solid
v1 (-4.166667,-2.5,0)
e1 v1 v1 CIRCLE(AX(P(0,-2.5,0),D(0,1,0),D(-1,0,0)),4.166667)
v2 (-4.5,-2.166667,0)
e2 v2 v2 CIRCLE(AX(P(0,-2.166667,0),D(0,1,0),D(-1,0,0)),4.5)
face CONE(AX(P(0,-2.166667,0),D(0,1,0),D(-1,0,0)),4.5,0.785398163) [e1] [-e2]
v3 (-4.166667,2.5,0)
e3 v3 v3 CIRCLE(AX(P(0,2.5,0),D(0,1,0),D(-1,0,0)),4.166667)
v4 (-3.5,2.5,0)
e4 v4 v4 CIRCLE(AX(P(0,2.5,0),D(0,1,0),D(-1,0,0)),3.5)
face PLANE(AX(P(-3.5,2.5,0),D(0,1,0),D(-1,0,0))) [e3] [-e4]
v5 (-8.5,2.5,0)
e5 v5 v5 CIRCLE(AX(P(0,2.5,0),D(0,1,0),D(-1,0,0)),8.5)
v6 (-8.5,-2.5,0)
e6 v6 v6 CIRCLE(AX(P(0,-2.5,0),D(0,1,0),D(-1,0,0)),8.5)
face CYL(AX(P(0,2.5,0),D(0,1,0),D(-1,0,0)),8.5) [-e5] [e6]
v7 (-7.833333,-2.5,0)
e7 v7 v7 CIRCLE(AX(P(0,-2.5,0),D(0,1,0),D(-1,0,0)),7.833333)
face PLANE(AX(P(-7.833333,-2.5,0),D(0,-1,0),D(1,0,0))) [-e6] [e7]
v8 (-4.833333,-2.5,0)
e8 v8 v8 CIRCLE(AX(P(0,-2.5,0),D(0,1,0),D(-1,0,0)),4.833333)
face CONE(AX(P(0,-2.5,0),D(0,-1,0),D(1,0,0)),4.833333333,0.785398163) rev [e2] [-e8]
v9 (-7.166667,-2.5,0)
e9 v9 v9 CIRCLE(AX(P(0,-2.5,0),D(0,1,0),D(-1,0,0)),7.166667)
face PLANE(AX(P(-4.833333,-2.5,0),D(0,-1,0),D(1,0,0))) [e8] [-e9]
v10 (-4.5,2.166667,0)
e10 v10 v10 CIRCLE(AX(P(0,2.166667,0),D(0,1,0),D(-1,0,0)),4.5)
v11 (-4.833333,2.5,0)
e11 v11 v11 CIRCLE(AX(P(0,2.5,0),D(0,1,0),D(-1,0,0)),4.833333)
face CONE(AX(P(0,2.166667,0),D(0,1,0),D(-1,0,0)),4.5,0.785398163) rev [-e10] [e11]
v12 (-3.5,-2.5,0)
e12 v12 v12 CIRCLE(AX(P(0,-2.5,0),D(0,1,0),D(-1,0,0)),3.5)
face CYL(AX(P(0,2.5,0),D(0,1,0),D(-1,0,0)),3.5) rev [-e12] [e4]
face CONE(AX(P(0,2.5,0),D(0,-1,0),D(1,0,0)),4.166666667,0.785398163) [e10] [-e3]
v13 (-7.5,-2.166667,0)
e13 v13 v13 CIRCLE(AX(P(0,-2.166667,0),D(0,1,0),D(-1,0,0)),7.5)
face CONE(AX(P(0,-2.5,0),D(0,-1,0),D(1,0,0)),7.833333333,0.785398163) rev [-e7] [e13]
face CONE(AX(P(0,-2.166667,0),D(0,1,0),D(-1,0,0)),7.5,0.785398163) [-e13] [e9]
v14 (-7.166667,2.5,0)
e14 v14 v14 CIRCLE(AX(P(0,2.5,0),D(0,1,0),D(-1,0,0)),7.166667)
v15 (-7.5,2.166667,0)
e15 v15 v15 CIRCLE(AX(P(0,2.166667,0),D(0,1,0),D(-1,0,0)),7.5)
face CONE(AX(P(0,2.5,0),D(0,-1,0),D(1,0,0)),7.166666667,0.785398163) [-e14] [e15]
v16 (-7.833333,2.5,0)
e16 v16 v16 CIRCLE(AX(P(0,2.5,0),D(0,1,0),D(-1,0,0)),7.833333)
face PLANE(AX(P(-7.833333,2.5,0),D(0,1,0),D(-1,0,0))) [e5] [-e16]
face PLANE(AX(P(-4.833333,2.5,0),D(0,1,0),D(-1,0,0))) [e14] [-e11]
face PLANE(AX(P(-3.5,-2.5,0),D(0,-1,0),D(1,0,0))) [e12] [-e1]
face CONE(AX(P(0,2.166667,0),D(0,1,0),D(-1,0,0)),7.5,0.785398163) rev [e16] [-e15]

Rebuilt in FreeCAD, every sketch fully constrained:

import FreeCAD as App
import Part
import Sketcher

V = App.Vector

doc = App.newDocument("Part")
params = doc.addObject("Spreadsheet::Sheet", "Params")
for row, (alias, value) in enumerate([
    ("sketch1_height", "5 mm"),
    ("revolution_angle", "360 deg"),
], start=1):
    params.set(f"A{row}", alias)
    params.set(f"B{row}", "=" + value)
    params.setAlias(f"B{row}", alias)

body = doc.addObject("PartDesign::Body", "Body")

# Sketch on XY plane
sketch1 = doc.addObject("Sketcher::SketchObject", "Sketch")
body.addObject(sketch1)
sketch1.AttachmentSupport = (doc.XY_Plane, [""])
sketch1.MapMode = "FlatFace"
sketch1.addGeometry([
    Part.LineSegment(V(-3.5, 2.5, 0), V(-4.166667, 2.5, 0)),  # 0
    Part.LineSegment(V(-4.166667, 2.5, 0), V(-4.5, 2.166667, 0)),  # 1
    Part.LineSegment(V(-4.5, 2.166667, 0), V(-4.833333, 2.5, 0)),  # 2
    Part.LineSegment(V(-4.833333, 2.5, 0), V(-7.166667, 2.5, 0)),  # 3
    Part.LineSegment(V(-7.166667, 2.5, 0), V(-7.5, 2.166667, 0)),  # 4
    Part.LineSegment(V(-7.5, 2.166667, 0), V(-7.833333, 2.5, 0)),  # 5
    Part.LineSegment(V(-7.833333, 2.5, 0), V(-8.5, 2.5, 0)),  # 6
    Part.LineSegment(V(-8.5, 2.5, 0), V(-8.5, -2.5, 0)),  # 7
    Part.LineSegment(V(-8.5, -2.5, 0), V(-7.833333, -2.5, 0)),  # 8
    Part.LineSegment(V(-7.833333, -2.5, 0), V(-7.5, -2.166667, 0)),  # 9
    Part.LineSegment(V(-7.5, -2.166667, 0), V(-7.166667, -2.5, 0)),  # 10
    Part.LineSegment(V(-7.166667, -2.5, 0), V(-4.833333, -2.5, 0)),  # 11
    Part.LineSegment(V(-4.833333, -2.5, 0), V(-4.5, -2.166667, 0)),  # 12
    Part.LineSegment(V(-4.5, -2.166667, 0), V(-4.166667, -2.5, 0)),  # 13
    Part.LineSegment(V(-4.166667, -2.5, 0), V(-3.5, -2.5, 0)),  # 14
    Part.LineSegment(V(-3.5, -2.5, 0), V(-3.5, 2.5, 0)),  # 15
], False)
sketch1.addConstraint([
    Sketcher.Constraint("Coincident", 0, 2, 1, 1),
    Sketcher.Constraint("Coincident", 1, 2, 2, 1),
    Sketcher.Constraint("Coincident", 2, 2, 3, 1),
    Sketcher.Constraint("Coincident", 3, 2, 4, 1),
    Sketcher.Constraint("Coincident", 4, 2, 5, 1),
    Sketcher.Constraint("Coincident", 5, 2, 6, 1),
    Sketcher.Constraint("Coincident", 6, 2, 7, 1),
    Sketcher.Constraint("Coincident", 7, 2, 8, 1),
    Sketcher.Constraint("Coincident", 8, 2, 9, 1),
    Sketcher.Constraint("Coincident", 9, 2, 10, 1),
    Sketcher.Constraint("Coincident", 10, 2, 11, 1),
    Sketcher.Constraint("Coincident", 11, 2, 12, 1),
    Sketcher.Constraint("Coincident", 12, 2, 13, 1),
    Sketcher.Constraint("Coincident", 13, 2, 14, 1),
    Sketcher.Constraint("Coincident", 14, 2, 15, 1),
    Sketcher.Constraint("Coincident", 15, 2, 0, 1),
    Sketcher.Constraint("Horizontal", 0),
    Sketcher.Constraint("Horizontal", 3),
    Sketcher.Constraint("Horizontal", 6),
    Sketcher.Constraint("Vertical", 7),
    Sketcher.Constraint("Horizontal", 8),
    Sketcher.Constraint("Horizontal", 11),
    Sketcher.Constraint("Horizontal", 14),
    Sketcher.Constraint("Vertical", 15),
    Sketcher.Constraint("Symmetric", 5, 2, 8, 2, -1),
    Sketcher.Constraint("Symmetric", 4, 2, 9, 2, -1),
    Sketcher.Constraint("Symmetric", 3, 2, 10, 2, -1),
    Sketcher.Constraint("Symmetric", 1, 2, 12, 2, -1),
    Sketcher.Constraint("Symmetric", 0, 2, 13, 2, -1),
    Sketcher.Constraint("Perpendicular", 1, 2),
    Sketcher.Constraint("Perpendicular", 2, 4),
    Sketcher.Constraint("Perpendicular", 4, 5),
    Sketcher.Constraint("Perpendicular", 5, 9),
    Sketcher.Constraint("Perpendicular", 10, 12),
    Sketcher.Constraint("Horizontal", 0, 2, 2, 2),
    Sketcher.Constraint("Horizontal", 1, 2, 4, 2),
    Sketcher.Constraint("Horizontal", 3, 2, 5, 2),
    Sketcher.Constraint("Equal", 0, 6),
    Sketcher.Constraint("DistanceY", 7, 2, 7, 1, 5.0),
    Sketcher.Constraint("DistanceX", 3, 2, 0, 2, 3.0),
    Sketcher.Constraint("DistanceX", 6, 2, 4, 2, 1.0),
    Sketcher.Constraint("DistanceX", 1, 2, -1, 1, 4.5),
    Sketcher.Constraint("DistanceX", 0, 2, 0, 1, 0.666667),
])
sketch1.setExpression("Constraints[38]", "Params.sketch1_height")
revolution = doc.addObject("PartDesign::Revolution", "Revolution")
body.addObject(revolution)
revolution.Profile = sketch1
revolution.ReferenceAxis = (sketch1, ["V_Axis"])
revolution.setExpression("Angle", "Params.revolution_angle")

doc.recompute()
